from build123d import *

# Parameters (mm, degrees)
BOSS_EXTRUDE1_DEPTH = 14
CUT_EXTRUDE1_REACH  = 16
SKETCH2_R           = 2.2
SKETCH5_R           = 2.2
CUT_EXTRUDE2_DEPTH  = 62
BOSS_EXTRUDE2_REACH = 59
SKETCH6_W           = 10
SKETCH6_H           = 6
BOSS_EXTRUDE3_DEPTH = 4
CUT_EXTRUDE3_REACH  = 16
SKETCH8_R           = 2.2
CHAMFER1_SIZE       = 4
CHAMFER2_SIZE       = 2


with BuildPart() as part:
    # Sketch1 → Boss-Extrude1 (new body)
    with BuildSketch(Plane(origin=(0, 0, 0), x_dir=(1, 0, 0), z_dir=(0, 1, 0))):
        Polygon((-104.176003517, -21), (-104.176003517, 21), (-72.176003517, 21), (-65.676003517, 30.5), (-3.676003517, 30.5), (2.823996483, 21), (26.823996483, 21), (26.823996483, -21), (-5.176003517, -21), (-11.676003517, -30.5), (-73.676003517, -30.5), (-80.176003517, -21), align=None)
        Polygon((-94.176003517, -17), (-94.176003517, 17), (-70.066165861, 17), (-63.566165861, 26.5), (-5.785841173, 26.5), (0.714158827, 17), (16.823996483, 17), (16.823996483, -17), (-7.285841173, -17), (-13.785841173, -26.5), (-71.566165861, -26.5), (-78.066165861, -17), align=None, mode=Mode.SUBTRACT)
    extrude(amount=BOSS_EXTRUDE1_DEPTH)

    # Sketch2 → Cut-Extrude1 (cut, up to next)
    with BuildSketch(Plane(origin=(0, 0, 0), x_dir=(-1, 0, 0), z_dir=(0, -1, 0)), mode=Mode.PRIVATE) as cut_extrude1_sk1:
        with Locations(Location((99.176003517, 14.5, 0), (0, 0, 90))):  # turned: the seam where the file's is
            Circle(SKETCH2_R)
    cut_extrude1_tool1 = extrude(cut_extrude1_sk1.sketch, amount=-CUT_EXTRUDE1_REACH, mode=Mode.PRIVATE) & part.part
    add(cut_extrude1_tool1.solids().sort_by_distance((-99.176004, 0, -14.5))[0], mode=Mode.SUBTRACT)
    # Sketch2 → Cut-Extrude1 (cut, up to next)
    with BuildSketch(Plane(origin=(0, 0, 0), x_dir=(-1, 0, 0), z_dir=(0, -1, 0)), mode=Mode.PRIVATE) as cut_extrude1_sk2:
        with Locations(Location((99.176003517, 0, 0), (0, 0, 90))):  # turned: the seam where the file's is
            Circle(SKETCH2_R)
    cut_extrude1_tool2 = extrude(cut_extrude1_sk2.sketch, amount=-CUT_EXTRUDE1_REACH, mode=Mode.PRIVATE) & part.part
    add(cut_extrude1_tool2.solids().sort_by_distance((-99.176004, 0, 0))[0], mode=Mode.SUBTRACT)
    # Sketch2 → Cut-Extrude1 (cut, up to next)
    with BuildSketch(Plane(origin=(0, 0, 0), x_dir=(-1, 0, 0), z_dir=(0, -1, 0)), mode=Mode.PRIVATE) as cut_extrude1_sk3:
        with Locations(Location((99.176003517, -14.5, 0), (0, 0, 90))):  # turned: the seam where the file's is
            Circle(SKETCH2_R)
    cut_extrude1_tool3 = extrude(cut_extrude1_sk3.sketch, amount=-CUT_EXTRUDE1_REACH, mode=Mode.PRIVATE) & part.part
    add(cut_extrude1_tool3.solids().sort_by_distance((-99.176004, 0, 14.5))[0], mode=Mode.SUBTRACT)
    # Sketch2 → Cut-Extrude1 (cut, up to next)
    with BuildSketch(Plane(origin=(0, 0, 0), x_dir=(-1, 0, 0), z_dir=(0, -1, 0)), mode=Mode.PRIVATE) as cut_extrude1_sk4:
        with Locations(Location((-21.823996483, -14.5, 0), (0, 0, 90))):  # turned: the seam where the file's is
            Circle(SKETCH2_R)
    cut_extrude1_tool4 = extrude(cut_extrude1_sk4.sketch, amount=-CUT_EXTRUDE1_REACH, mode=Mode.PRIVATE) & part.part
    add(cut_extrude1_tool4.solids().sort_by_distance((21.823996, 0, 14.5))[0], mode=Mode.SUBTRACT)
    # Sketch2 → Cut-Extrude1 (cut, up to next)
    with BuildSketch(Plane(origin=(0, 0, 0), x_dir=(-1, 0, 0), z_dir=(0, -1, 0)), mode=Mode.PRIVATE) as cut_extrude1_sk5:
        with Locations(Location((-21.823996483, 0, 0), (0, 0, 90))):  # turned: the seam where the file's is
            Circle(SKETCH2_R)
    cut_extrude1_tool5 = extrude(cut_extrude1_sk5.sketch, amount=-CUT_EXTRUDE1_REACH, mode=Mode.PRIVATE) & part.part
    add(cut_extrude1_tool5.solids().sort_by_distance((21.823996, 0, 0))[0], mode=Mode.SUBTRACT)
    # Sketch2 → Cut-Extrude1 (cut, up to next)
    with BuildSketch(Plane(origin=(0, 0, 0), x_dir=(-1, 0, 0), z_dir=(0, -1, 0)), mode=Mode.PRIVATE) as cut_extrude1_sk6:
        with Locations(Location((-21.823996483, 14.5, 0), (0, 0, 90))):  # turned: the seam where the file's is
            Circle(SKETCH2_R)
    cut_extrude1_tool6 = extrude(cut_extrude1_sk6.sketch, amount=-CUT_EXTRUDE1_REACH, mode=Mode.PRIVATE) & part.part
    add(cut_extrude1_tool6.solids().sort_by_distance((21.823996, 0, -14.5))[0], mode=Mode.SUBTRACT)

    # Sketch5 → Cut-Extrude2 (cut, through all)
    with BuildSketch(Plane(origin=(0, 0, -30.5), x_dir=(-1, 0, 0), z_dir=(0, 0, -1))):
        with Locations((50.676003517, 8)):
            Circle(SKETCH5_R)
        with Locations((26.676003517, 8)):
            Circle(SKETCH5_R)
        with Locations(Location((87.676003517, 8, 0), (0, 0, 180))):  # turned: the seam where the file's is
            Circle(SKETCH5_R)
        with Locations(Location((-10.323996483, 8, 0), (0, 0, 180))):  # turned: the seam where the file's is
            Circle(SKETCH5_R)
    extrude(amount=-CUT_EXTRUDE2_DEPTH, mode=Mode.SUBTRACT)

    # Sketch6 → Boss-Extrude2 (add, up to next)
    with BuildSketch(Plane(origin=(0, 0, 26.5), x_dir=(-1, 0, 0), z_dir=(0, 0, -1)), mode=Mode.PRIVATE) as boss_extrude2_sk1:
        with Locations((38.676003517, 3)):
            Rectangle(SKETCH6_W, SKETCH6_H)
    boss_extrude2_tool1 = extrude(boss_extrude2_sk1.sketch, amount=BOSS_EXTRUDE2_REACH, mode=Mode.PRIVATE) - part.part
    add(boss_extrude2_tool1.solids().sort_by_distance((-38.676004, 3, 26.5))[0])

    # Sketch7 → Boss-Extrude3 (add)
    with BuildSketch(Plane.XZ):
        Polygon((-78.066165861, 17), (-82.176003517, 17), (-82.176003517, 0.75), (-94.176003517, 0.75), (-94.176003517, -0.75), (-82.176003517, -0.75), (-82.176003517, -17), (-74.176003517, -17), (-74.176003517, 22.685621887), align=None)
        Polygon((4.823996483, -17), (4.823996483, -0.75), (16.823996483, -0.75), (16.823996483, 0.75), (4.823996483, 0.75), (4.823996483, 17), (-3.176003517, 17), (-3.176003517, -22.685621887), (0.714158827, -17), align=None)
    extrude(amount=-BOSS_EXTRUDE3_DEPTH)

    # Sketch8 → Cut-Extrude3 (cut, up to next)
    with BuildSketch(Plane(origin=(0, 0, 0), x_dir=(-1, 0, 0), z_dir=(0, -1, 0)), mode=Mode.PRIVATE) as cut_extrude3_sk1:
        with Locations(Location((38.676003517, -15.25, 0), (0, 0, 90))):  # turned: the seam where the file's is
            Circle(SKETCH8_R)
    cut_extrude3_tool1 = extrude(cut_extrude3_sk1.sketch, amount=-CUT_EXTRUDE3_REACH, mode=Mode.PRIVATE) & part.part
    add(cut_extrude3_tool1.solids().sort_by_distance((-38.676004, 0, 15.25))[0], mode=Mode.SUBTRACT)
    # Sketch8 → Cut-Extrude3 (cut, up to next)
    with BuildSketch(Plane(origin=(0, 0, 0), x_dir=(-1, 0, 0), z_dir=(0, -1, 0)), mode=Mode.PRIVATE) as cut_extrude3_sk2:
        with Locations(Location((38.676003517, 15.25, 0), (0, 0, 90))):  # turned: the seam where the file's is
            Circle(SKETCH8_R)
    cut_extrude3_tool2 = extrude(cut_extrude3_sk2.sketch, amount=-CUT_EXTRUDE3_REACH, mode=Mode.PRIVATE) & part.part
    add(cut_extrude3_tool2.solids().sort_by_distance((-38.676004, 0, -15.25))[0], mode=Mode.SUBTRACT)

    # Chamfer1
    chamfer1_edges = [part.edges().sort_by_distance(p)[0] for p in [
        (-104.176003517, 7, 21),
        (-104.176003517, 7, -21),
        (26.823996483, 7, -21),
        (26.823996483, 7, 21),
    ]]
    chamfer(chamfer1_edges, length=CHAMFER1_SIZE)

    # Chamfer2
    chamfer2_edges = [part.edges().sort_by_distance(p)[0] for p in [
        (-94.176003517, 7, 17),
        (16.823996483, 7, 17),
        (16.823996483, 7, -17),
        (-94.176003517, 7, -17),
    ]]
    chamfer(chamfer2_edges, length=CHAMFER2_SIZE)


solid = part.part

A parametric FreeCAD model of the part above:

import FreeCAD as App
import Part
import Sketcher
Q = App.Units.Quantity


def edges_at(feature, points):
    """Names of the edges that pass closest to the given points."""
    edges = feature.Shape.Edges
    near = lambda p: min(range(len(edges)), key=lambda i: edges[i].distToShape(Part.Vertex(*p))[0])
    return sorted({f"Edge{near(p) + 1}" for p in points})


def add_polygon(sketch, points):
    """Adds a closed chain of lines whose ends are joined by coincident constraints."""
    first, n = sketch.GeometryCount, len(points)
    for a, b in zip(points, points[1:] + points[:1]):
        sketch.addGeometry(Part.LineSegment(App.Vector(*a, 0), App.Vector(*b, 0)), False)
    for i in range(n):
        sketch.addConstraint(Sketcher.Constraint("Coincident", first + i, 2, first + (i + 1) % n, 1))

doc = App.newDocument("Part")
params = doc.addObject("Spreadsheet::Sheet", "Params")
for row, (alias, value) in enumerate([
    ("sketch1_width", "24 mm"),
    ("sketch1_width2", "62 mm"),
    ("sketch1_width3", "32 mm"),
    ("sketch1_height", "42 mm"),
    ("sketch1_height2", "34 mm"),
    ("pad1_length", "14 mm"),
    ("sketch2_diameter", "4.4 mm"),
    ("sketch3_diameter", "4.4 mm"),
    ("sketch4_diameter", "4.4 mm"),
    ("sketch5_diameter", "4.4 mm"),
    ("sketch6_diameter", "4.4 mm"),
    ("sketch7_diameter", "4.4 mm"),
    ("sketch8_diameter", "4.4 mm"),
    ("sketch9_width", "10 mm"),
    ("sketch9_height", "6 mm"),
    ("sketch10_width", "12 mm"),
    ("sketch10_width2", "8 mm"),
    ("sketch10_height", "1.5 mm"),
    ("pad3_length", "4 mm"),
    ("sketch11_diameter", "4.4 mm"),
    ("sketch12_diameter", "4.4 mm"),
    ("chamfer_size", "4 mm"),
    ("chamfer2_size", "2 mm"),
], start=1):
    params.set(f"A{row}", alias)
    params.set(f"B{row}", "=" + value)
    params.setAlias(f"B{row}", alias)

body = doc.addObject("PartDesign::Body", "Body")

# Sketch on XZ plane
sketch1 = body.newObject("Sketcher::SketchObject", "Sketch")
sketch1.AttachmentSupport = (doc.getObject("XZ_Plane"), [""])
sketch1.MapMode = "FlatFace"
add_polygon(sketch1, [(-104.176004, -21), (-104.176004, 21), (-80.176004, 21), (-73.676004, 30.5), (-11.676004, 30.5), (-5.176004, 21), (26.823996, 21), (26.823996, -21), (2.823996, -21), (-3.676004, -30.5), (-65.676004, -30.5), (-72.176004, -21)])  # lines 0-11
add_polygon(sketch1, [(-94.176004, 17), (-94.176004, -17), (-70.066166, -17), (-63.566166, -26.5), (-5.785841, -26.5), (0.714159, -17), (16.823996, -17), (16.823996, 17), (-7.285841, 17), (-13.785841, 26.5), (-71.566166, 26.5), (-78.066166, 17)])  # lines 12-23
sketch1.addConstraint(Sketcher.Constraint("Vertical", 0))
sketch1.addConstraint(Sketcher.Constraint("Horizontal", 1))
sketch1.addConstraint(Sketcher.Constraint("Horizontal", 3))
sketch1.addConstraint(Sketcher.Constraint("Horizontal", 5))
sketch1.addConstraint(Sketcher.Constraint("Vertical", 6))
sketch1.addConstraint(Sketcher.Constraint("Horizontal", 7))
sketch1.addConstraint(Sketcher.Constraint("Horizontal", 9))
sketch1.addConstraint(Sketcher.Constraint("Horizontal", 11))
sketch1.addConstraint(Sketcher.Constraint("Vertical", 12))
sketch1.addConstraint(Sketcher.Constraint("Horizontal", 13))
sketch1.addConstraint(Sketcher.Constraint("Horizontal", 15))
sketch1.addConstraint(Sketcher.Constraint("Horizontal", 17))
sketch1.addConstraint(Sketcher.Constraint("Vertical", 18))
sketch1.addConstraint(Sketcher.Constraint("Horizontal", 19))
sketch1.addConstraint(Sketcher.Constraint("Horizontal", 21))
sketch1.addConstraint(Sketcher.Constraint("Horizontal", 23))
sketch1.addConstraint(Sketcher.Constraint("Parallel", 2, 8))
sketch1.addConstraint(Sketcher.Constraint("Parallel", 4, 10))
sketch1.addConstraint(Sketcher.Constraint("Parallel", 10, 14))
sketch1.addConstraint(Sketcher.Constraint("Parallel", 8, 16))
sketch1.addConstraint(Sketcher.Constraint("Parallel", 14, 20))
sketch1.addConstraint(Sketcher.Constraint("Parallel", 16, 22))
sketch1.addConstraint(Sketcher.Constraint("Horizontal", 1, 2, 4, 2))
sketch1.addConstraint(Sketcher.Constraint("Horizontal", 7, 2, 10, 2))
sketch1.addConstraint(Sketcher.Constraint("Horizontal", 13, 2, 16, 2))
sketch1.addConstraint(Sketcher.Constraint("Horizontal", 19, 2, 22, 2))
sketch1.addConstraint(Sketcher.Constraint("Equal", 1, 7))
sketch1.addConstraint(Sketcher.Constraint("Equal", 3, 9))
sketch1.addConstraint(Sketcher.Constraint("Equal", 5, 11))
sketch1.addConstraint(Sketcher.Constraint("Equal", 13, 19))
sketch1.addConstraint(Sketcher.Constraint("Equal", 15, 21))
sketch1.addConstraint(Sketcher.Constraint("Equal", 17, 23))
sketch1.addConstraint(Sketcher.Constraint("Equal", 2, 4))
sketch1.addConstraint(Sketcher.Constraint("Equal", 10, 14))
sketch1.addConstraint(Sketcher.Constraint("DistanceX", 1, 1, 1, 2, Q("24 mm")))
sketch1.addConstraint(Sketcher.Constraint("DistanceX", 3, 1, 3, 2, Q("62 mm")))
sketch1.addConstraint(Sketcher.Constraint("DistanceX", 5, 1, 5, 2, Q("32 mm")))
sketch1.addConstraint(Sketcher.Constraint("DistanceY", 0, 1, 0, 2, Q("42 mm")))
sketch1.addConstraint(Sketcher.Constraint("DistanceY", 12, 2, 12, 1, Q("34 mm")))
sketch1.addConstraint(Sketcher.Constraint("DistanceY", -1, 1, 0, 2, Q("21 mm")))
sketch1.addConstraint(Sketcher.Constraint("DistanceY", 12, 2, -1, 1, Q("17 mm")))
sketch1.addConstraint(Sketcher.Constraint("DistanceX", 1, 2, 4, 2, Q("75 mm")))
sketch1.addConstraint(Sketcher.Constraint("DistanceY", 8, 2, 3, 2, Q("61 mm")))
sketch1.addConstraint(Sketcher.Constraint("DistanceX", 11, 2, 12, 2, Q("10 mm")))
sketch1.addConstraint(Sketcher.Constraint("DistanceX", 17, 2, 6, 2, Q("10 mm")))
sketch1.addConstraint(Sketcher.Constraint("DistanceX", 19, 2, 16, 2, Q("8 mm")))
sketch1.addConstraint(Sketcher.Constraint("DistanceX", 13, 1, 13, 2, Q("24.109838 mm")))
sketch1.addConstraint(Sketcher.Constraint("DistanceX", 15, 2, -1, 1, Q("5.785841 mm")))
sketch1.setExpression("Constraints[58]", "Params.sketch1_width")
sketch1.setExpression("Constraints[59]", "Params.sketch1_width2")
sketch1.setExpression("Constraints[60]", "Params.sketch1_width3")
sketch1.setExpression("Constraints[61]", "Params.sketch1_height")
sketch1.setExpression("Constraints[62]", "Params.sketch1_height2")
pad1 = body.newObject("PartDesign::Pad", "Pad")
pad1.Profile = sketch1
pad1.setExpression("Length", "Params.pad1_length")
pad1.Reversed = True

# Sketch on XZ plane
sketch2 = body.newObject("Sketcher::SketchObject", "Sketch001")
sketch2.AttachmentSupport = (doc.getObject("XZ_Plane"), [""])
sketch2.MapMode = "FlatFace"
sketch2.addGeometry(Part.Circle(App.Vector(-99.176004, -14.5, 0), App.Vector(0, 0, 1), 2.2), False)
sketch2.addConstraint(Sketcher.Constraint("Diameter", 0, Q("4.4 mm")))
sketch2.addConstraint(Sketcher.Constraint("DistanceY", 0, 3, -1, 1, Q("14.5 mm")))
sketch2.addConstraint(Sketcher.Constraint("DistanceX", 0, 3, -1, 1, Q("99.176004 mm")))
sketch2.setExpression("Constraints[0]", "Params.sketch2_diameter")
pocket1 = body.newObject("PartDesign::Pocket", "Pocket")
pocket1.Profile = sketch2
pocket1.Type = "UpToFirst"

# Sketch on XZ plane
sketch3 = body.newObject("Sketcher::SketchObject", "Sketch002")
sketch3.AttachmentSupport = (doc.getObject("XZ_Plane"), [""])
sketch3.MapMode = "FlatFace"
sketch3.addGeometry(Part.Circle(App.Vector(-99.176004, 0, 0), App.Vector(0, 0, 1), 2.2), False)
sketch3.addConstraint(Sketcher.Constraint("PointOnObject", 0, 3, -1))
sketch3.addConstraint(Sketcher.Constraint("Diameter", 0, Q("4.4 mm")))
sketch3.addConstraint(Sketcher.Constraint("DistanceX", 0, 3, -1, 1, Q("99.176004 mm")))
sketch3.setExpression("Constraints[1]", "Params.sketch3_diameter")
pocket2 = body.newObject("PartDesign::Pocket", "Pocket001")
pocket2.Profile = sketch3
pocket2.Type = "UpToFirst"

# Sketch on XZ plane
sketch4 = body.newObject("Sketcher::SketchObject", "Sketch003")
sketch4.AttachmentSupport = (doc.getObject("XZ_Plane"), [""])
sketch4.MapMode = "FlatFace"
sketch4.addGeometry(Part.Circle(App.Vector(-99.176004, 14.5, 0), App.Vector(0, 0, 1), 2.2), False)
sketch4.addConstraint(Sketcher.Constraint("Diameter", 0, Q("4.4 mm")))
sketch4.addConstraint(Sketcher.Constraint("DistanceY", -1, 1, 0, 3, Q("14.5 mm")))
sketch4.addConstraint(Sketcher.Constraint("DistanceX", 0, 3, -1, 1, Q("99.176004 mm")))
sketch4.setExpression("Constraints[0]", "Params.sketch4_diameter")
pocket3 = body.newObject("PartDesign::Pocket", "Pocket002")
pocket3.Profile = sketch4
pocket3.Type = "UpToFirst"

# Sketch on XZ plane
sketch5 = body.newObject("Sketcher::SketchObject", "Sketch004")
sketch5.AttachmentSupport = (doc.getObject("XZ_Plane"), [""])
sketch5.MapMode = "FlatFace"
sketch5.addGeometry(Part.Circle(App.Vector(21.823996, 14.5, 0), App.Vector(0, 0, 1), 2.2), False)
sketch5.addConstraint(Sketcher.Constraint("Diameter", 0, Q("4.4 mm")))
sketch5.addConstraint(Sketcher.Constraint("DistanceY", -1, 1, 0, 3, Q("14.5 mm")))
sketch5.addConstraint(Sketcher.Constraint("DistanceX", -1, 1, 0, 3, Q("21.823996 mm")))
sketch5.setExpression("Constraints[0]", "Params.sketch5_diameter")
pocket4 = body.newObject("PartDesign::Pocket", "Pocket003")
pocket4.Profile = sketch5
pocket4.Type = "UpToFirst"

# Sketch on XZ plane
sketch6 = body.newObject("Sketcher::SketchObject", "Sketch005")
sketch6.AttachmentSupport = (doc.getObject("XZ_Plane"), [""])
sketch6.MapMode = "FlatFace"
sketch6.addGeometry(Part.Circle(App.Vector(21.823996, 0, 0), App.Vector(0, 0, 1), 2.2), False)
sketch6.addConstraint(Sketcher.Constraint("PointOnObject", 0, 3, -1))
sketch6.addConstraint(Sketcher.Constraint("Diameter", 0, Q("4.4 mm")))
sketch6.addConstraint(Sketcher.Constraint("DistanceX", -1, 1, 0, 3, Q("21.823996 mm")))
sketch6.setExpression("Constraints[1]", "Params.sketch6_diameter")
pocket5 = body.newObject("PartDesign::Pocket", "Pocket004")
pocket5.Profile = sketch6
pocket5.Type = "UpToFirst"

# Sketch on XZ plane
sketch7 = body.newObject("Sketcher::SketchObject", "Sketch006")
sketch7.AttachmentSupport = (doc.getObject("XZ_Plane"), [""])
sketch7.MapMode = "FlatFace"
sketch7.addGeometry(Part.Circle(App.Vector(21.823996, -14.5, 0), App.Vector(0, 0, 1), 2.2), False)
sketch7.addConstraint(Sketcher.Constraint("Diameter", 0, Q("4.4 mm")))
sketch7.addConstraint(Sketcher.Constraint("DistanceY", 0, 3, -1, 1, Q("14.5 mm")))
sketch7.addConstraint(Sketcher.Constraint("DistanceX", -1, 1, 0, 3, Q("21.823996 mm")))
sketch7.setExpression("Constraints[0]", "Params.sketch7_diameter")
pocket6 = body.newObject("PartDesign::Pocket", "Pocket005")
pocket6.Profile = sketch7
pocket6.Type = "UpToFirst"

# Sketch on XY plane
sketch8 = body.newObject("Sketcher::SketchObject", "Sketch007")
sketch8.AttachmentSupport = (doc.getObject("XY_Plane"), [""])
sketch8.MapMode = "FlatFace"
sketch8.AttachmentOffset = App.Placement(App.Vector(0, 0, -30.5), App.Rotation())
sketch8.addGeometry(Part.Circle(App.Vector(-50.676004, 8, 0), App.Vector(0, 0, 1), 2.2), False)
sketch8.addGeometry(Part.Circle(App.Vector(-26.676004, 8, 0), App.Vector(0, 0, 1), 2.2), False)
sketch8.addGeometry(Part.Circle(App.Vector(-87.676004, 8, 0), App.Vector(0, 0, 1), 2.2), False)
sketch8.addGeometry(Part.Circle(App.Vector(10.323996, 8, 0), App.Vector(0, 0, 1), 2.2), False)
sketch8.addConstraint(Sketcher.Constraint("Equal", 0, 1))
sketch8.addConstraint(Sketcher.Constraint("Equal", 1, 2))
sketch8.addConstraint(Sketcher.Constraint("Equal", 2, 3))
sketch8.addConstraint(Sketcher.Constraint("Horizontal", 0, 3, 1, 3))
sketch8.addConstraint(Sketcher.Constraint("Horizontal", 1, 3, 2, 3))
sketch8.addConstraint(Sketcher.Constraint("Horizontal", 2, 3, 3, 3))
sketch8.addConstraint(Sketcher.Constraint("Diameter", 0, Q("4.4 mm")))
sketch8.addConstraint(Sketcher.Constraint("DistanceY", -1, 1, 0, 3, Q("8 mm")))
sketch8.addConstraint(Sketcher.Constraint("DistanceX", 0, 3, 1, 3, Q("24 mm")))
sketch8.addConstraint(Sketcher.Constraint("DistanceX", 2, 3, 0, 3, Q("37 mm")))
sketch8.addConstraint(Sketcher.Constraint("DistanceX", 1, 3, 3, 3, Q("37 mm")))
sketch8.addConstraint(Sketcher.Constraint("DistanceX", 0, 3, -1, 1, Q("50.676004 mm")))
sketch8.setExpression("Constraints[6]", "Params.sketch8_diameter")
pocket7 = body.newObject("PartDesign::Pocket", "Pocket006")
pocket7.Profile = sketch8
pocket7.Type = "ThroughAll"
pocket7.Reversed = True

# Sketch on XY plane
sketch9 = body.newObject("Sketcher::SketchObject", "Sketch008")
sketch9.AttachmentSupport = (doc.getObject("XY_Plane"), [""])
sketch9.MapMode = "FlatFace"
sketch9.AttachmentOffset = App.Placement(App.Vector(0, 0, 26.5), App.Rotation())
add_polygon(sketch9, [(-33.676004, 6), (-33.676004, 0), (-43.676004, 0), (-43.676004, 6)])  # lines 0-3
sketch9.addConstraint(Sketcher.Constraint("Vertical", 0))
sketch9.addConstraint(Sketcher.Constraint("Horizontal", 1))
sketch9.addConstraint(Sketcher.Constraint("Vertical", 2))
sketch9.addConstraint(Sketcher.Constraint("Horizontal", 3))
sketch9.addConstraint(Sketcher.Constraint("PointOnObject", 0, 2, -1))
sketch9.addConstraint(Sketcher.Constraint("DistanceX", 1, 2, 1, 1, Q("10 mm")))
sketch9.addConstraint(Sketcher.Constraint("DistanceY", 0, 2, 0, 1, Q("6 mm")))
sketch9.addConstraint(Sketcher.Constraint("DistanceX", 0, 2, -1, 1, Q("33.676004 mm")))
sketch9.setExpression("Constraints[9]", "Params.sketch9_width")
sketch9.setExpression("Constraints[10]", "Params.sketch9_height")
pad2 = body.newObject("PartDesign::Pad", "Pad001")
pad2.Profile = sketch9
pad2.Type = "UpToFirst"
pad2.Reversed = True

# Sketch on XZ plane
sketch10 = body.newObject("Sketcher::SketchObject", "Sketch009")
sketch10.AttachmentSupport = (doc.getObject("XZ_Plane"), [""])
sketch10.MapMode = "FlatFace"
add_polygon(sketch10, [(-78.066166, 17), (-82.176004, 17), (-82.176004, 0.75), (-94.176004, 0.75), (-94.176004, -0.75), (-82.176004, -0.75), (-82.176004, -17), (-74.176004, -17), (-74.176004, 22.685622)])  # lines 0-8
add_polygon(sketch10, [(4.823996, -17), (4.823996, -0.75), (16.823996, -0.75), (16.823996, 0.75), (4.823996, 0.75), (4.823996, 17), (-3.176004, 17), (-3.176004, -22.685622), (0.714159, -17)])  # lines 9-17
sketch10.addConstraint(Sketcher.Constraint("Horizontal", 0))
sketch10.addConstraint(Sketcher.Constraint("Vertical", 1))
sketch10.addConstraint(Sketcher.Constraint("Horizontal", 2))
sketch10.addConstraint(Sketcher.Constraint("Vertical", 3))
sketch10.addConstraint(Sketcher.Constraint("Horizontal", 4))
sketch10.addConstraint(Sketcher.Constraint("Vertical", 5))
sketch10.addConstraint(Sketcher.Constraint("Horizontal", 6))
sketch10.addConstraint(Sketcher.Constraint("Vertical", 7))
sketch10.addConstraint(Sketcher.Constraint("Vertical", 9))
sketch10.addConstraint(Sketcher.Constraint("Horizontal", 10))
sketch10.addConstraint(Sketcher.Constraint("Vertical", 11))
sketch10.addConstraint(Sketcher.Constraint("Horizontal", 12))
sketch10.addConstraint(Sketcher.Constraint("Vertical", 13))
sketch10.addConstraint(Sketcher.Constraint("Horizontal", 14))
sketch10.addConstraint(Sketcher.Constraint("Vertical", 15))
sketch10.addConstraint(Sketcher.Constraint("Horizontal", 17))
sketch10.addConstraint(Sketcher.Constraint("Symmetric", 1, 2, 4, 2, -1))
sketch10.addConstraint(Sketcher.Constraint("Symmetric", 9, 2, 12, 2, -1))
sketch10.addConstraint(Sketcher.Constraint("Parallel", 8, 16))
sketch10.addConstraint(Sketcher.Constraint("Horizontal", 4, 2, 9, 2))
sketch10.addConstraint(Sketcher.Constraint("Horizontal", 8, 2, 13, 2))
sketch10.addConstraint(Sketcher.Constraint("Horizontal", 6, 2, 16, 2))
sketch10.addConstraint(Sketcher.Constraint("Equal", 4, 10))
sketch10.addConstraint(Sketcher.Constraint("Equal", 6, 14))
sketch10.addConstraint(Sketcher.Constraint("Equal", 0, 17))
sketch10.addConstraint(Sketcher.Constraint("Equal", 1, 5))
sketch10.addConstraint(Sketcher.Constraint("DistanceX", 2, 2, 2, 1, Q("12 mm")))
sketch10.addConstraint(Sketcher.Constraint("DistanceX", 6, 1, 6, 2, Q("8 mm")))
sketch10.addConstraint(Sketcher.Constraint("DistanceY", 3, 2, 3, 1, Q("1.5 mm")))
sketch10.addConstraint(Sketcher.Constraint("DistanceY", -1, 1, 0, 2, Q("17 mm")))
sketch10.addConstraint(Sketcher.Constraint("DistanceX", 6, 2, 9, 2, Q("79 mm")))
sketch10.addConstraint(Sketcher.Constraint("DistanceY", 7, 1, 7, 2, Q("39.685622 mm")))
sketch10.addConstraint(Sketcher.Constraint("DistanceX", 0, 2, 0, 1, Q("4.109838 mm")))
sketch10.addConstraint(Sketcher.Constraint("DistanceX", -1, 1, 16, 2, Q("0.714159 mm")))
sketch10.setExpression("Constraints[44]", "Params.sketch10_width")
sketch10.setExpression("Constraints[45]", "Params.sketch10_width2")
sketch10.setExpression("Constraints[46]", "Params.sketch10_height")
pad3 = body.newObject("PartDesign::Pad", "Pad002")
pad3.Profile = sketch10
pad3.setExpression("Length", "Params.pad3_length")
pad3.Reversed = True

# Sketch on XZ plane
sketch11 = body.newObject("Sketcher::SketchObject", "Sketch010")
sketch11.AttachmentSupport = (doc.getObject("XZ_Plane"), [""])
sketch11.MapMode = "FlatFace"
sketch11.addGeometry(Part.Circle(App.Vector(-38.676004, 15.25, 0), App.Vector(0, 0, 1), 2.2), False)
sketch11.addConstraint(Sketcher.Constraint("Diameter", 0, Q("4.4 mm")))
sketch11.addConstraint(Sketcher.Constraint("DistanceY", -1, 1, 0, 3, Q("15.25 mm")))
sketch11.addConstraint(Sketcher.Constraint("DistanceX", 0, 3, -1, 1, Q("38.676004 mm")))
sketch11.setExpression("Constraints[0]", "Params.sketch11_diameter")
pocket8 = body.newObject("PartDesign::Pocket", "Pocket007")
pocket8.Profile = sketch11
pocket8.Type = "UpToFirst"

# Sketch on XZ plane
sketch12 = body.newObject("Sketcher::SketchObject", "Sketch011")
sketch12.AttachmentSupport = (doc.getObject("XZ_Plane"), [""])
sketch12.MapMode = "FlatFace"
sketch12.addGeometry(Part.Circle(App.Vector(-38.676004, -15.25, 0), App.Vector(0, 0, 1), 2.2), False)
sketch12.addConstraint(Sketcher.Constraint("Diameter", 0, Q("4.4 mm")))
sketch12.addConstraint(Sketcher.Constraint("DistanceY", 0, 3, -1, 1, Q("15.25 mm")))
sketch12.addConstraint(Sketcher.Constraint("DistanceX", 0, 3, -1, 1, Q("38.676004 mm")))
sketch12.setExpression("Constraints[0]", "Params.sketch12_diameter")
pocket9 = body.newObject("PartDesign::Pocket", "Pocket008")
pocket9.Profile = sketch12
pocket9.Type = "UpToFirst"
doc.recompute()

chamfer = body.newObject("PartDesign::Chamfer", "Chamfer")
chamfer.Base = (pocket9, edges_at(pocket9, [
    (-104.176, 7, 21),
    (-104.176, 7, -21),
    (26.824, 7, -21),
    (26.824, 7, 21),
]))
chamfer.setExpression("Size", "Params.chamfer_size")
doc.recompute()

chamfer2 = body.newObject("PartDesign::Chamfer", "Chamfer001")
chamfer2.Base = (chamfer, edges_at(chamfer, [
    (-94.176, 7, 17),
    (16.824, 7, 17),
    (16.824, 7, -17),
    (-94.176, 7, -17),
]))
chamfer2.setExpression("Size", "Params.chamfer2_size")

doc.recompute()
